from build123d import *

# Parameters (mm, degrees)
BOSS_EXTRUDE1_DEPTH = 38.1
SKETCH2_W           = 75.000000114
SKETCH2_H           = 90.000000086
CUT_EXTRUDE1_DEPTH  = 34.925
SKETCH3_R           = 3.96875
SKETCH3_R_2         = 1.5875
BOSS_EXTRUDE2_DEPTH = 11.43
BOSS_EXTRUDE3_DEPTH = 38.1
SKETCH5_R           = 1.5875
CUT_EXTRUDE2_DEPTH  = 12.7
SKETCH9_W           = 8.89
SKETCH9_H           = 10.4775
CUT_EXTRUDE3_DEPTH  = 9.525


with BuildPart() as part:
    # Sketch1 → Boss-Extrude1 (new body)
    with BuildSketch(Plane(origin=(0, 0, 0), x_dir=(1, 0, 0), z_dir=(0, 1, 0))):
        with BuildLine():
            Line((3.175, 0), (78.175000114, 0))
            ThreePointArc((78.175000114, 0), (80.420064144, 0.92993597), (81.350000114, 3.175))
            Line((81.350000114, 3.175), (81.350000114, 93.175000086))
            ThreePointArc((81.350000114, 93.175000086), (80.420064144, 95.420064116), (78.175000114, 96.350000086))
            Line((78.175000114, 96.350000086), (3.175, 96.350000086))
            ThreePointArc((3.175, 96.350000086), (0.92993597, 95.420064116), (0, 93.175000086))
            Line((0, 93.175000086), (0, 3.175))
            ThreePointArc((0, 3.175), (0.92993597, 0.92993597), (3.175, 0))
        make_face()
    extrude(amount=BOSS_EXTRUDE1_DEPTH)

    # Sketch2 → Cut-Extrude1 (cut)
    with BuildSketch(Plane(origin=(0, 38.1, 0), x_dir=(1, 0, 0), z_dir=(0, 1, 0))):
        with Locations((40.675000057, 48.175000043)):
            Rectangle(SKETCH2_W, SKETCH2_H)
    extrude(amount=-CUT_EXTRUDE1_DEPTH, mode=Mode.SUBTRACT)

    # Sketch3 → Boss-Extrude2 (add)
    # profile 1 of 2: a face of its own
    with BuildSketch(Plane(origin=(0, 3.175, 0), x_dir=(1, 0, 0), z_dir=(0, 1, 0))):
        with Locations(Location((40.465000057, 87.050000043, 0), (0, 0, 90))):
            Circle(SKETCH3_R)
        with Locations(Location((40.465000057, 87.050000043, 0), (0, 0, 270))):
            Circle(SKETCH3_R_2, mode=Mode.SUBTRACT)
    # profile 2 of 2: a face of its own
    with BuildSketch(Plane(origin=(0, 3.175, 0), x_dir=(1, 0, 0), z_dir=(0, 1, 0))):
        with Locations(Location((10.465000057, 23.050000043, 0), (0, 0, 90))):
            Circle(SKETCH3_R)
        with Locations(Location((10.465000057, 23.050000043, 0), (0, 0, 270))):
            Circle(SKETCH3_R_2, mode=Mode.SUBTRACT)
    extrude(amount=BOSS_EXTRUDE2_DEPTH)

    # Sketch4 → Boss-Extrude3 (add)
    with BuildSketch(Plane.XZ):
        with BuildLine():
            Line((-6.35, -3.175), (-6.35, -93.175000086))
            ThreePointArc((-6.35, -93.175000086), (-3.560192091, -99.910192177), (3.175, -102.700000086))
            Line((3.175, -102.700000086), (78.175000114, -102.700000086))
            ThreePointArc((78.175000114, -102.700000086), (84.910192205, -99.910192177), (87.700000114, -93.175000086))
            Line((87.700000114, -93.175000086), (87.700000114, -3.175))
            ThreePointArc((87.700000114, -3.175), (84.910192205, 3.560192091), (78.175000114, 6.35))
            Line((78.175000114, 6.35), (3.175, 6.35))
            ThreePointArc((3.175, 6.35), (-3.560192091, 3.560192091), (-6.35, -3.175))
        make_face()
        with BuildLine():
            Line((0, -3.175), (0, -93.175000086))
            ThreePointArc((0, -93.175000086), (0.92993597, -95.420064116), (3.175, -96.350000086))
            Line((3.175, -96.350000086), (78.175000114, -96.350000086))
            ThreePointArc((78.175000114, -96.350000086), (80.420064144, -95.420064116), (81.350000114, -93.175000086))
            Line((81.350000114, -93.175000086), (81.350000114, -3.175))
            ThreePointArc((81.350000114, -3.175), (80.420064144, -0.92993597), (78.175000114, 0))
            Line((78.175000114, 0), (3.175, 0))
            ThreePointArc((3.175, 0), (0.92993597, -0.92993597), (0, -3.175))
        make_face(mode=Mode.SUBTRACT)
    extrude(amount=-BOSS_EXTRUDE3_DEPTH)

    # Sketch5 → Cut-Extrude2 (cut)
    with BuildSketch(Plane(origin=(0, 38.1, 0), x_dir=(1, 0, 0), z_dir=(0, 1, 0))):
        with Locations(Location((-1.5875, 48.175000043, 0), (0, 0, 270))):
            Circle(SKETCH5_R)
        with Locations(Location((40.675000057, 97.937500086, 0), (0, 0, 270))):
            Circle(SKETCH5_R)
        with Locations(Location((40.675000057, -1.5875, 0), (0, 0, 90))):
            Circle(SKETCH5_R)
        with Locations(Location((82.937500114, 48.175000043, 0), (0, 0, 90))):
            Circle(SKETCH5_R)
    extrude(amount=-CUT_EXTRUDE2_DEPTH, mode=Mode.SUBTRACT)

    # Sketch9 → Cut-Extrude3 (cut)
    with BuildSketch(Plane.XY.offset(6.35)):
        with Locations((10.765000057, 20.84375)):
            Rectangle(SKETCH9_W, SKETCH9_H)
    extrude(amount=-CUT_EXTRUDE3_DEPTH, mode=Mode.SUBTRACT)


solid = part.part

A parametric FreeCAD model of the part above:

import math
import FreeCAD as App
import Part
import Sketcher
Q = App.Units.Quantity

doc = App.newDocument("Part")
body = doc.addObject("PartDesign::Body", "Body")

# Sketch on XZ plane
sketch1 = doc.addObject("Sketcher::SketchObject", "Sketch")
body.addObject(sketch1)
sketch1.AttachmentSupport = (doc.XZ_Plane, [""])
sketch1.MapMode = "FlatFace"
sketch1.addGeometry(Part.LineSegment(App.Vector(3.2, 0, 0), App.Vector(78.2, 0, 0)), False)
sketch1.addGeometry(Part.ArcOfCircle(Part.Circle(App.Vector(78.2, -3.2, 0), App.Vector(0, 0, 1), 3.2), math.radians(0), math.radians(90)), False)
sketch1.addGeometry(Part.LineSegment(App.Vector(81.4, -3.2, 0), App.Vector(81.4, -93.2, 0)), False)
sketch1.addGeometry(Part.ArcOfCircle(Part.Circle(App.Vector(78.2, -93.2, 0), App.Vector(0, 0, 1), 3.2), math.radians(-90), math.radians(0)), False)
sketch1.addGeometry(Part.LineSegment(App.Vector(78.2, -96.4, 0), App.Vector(3.2, -96.4, 0)), False)
sketch1.addGeometry(Part.ArcOfCircle(Part.Circle(App.Vector(3.2, -93.2, 0), App.Vector(0, 0, 1), 3.2), math.radians(-180), math.radians(-90)), False)
sketch1.addGeometry(Part.LineSegment(App.Vector(0, -93.2, 0), App.Vector(0, -3.2, 0)), False)
sketch1.addGeometry(Part.ArcOfCircle(Part.Circle(App.Vector(3.2, -3.2, 0), App.Vector(0, 0, 1), 3.2), math.radians(90), math.radians(180)), False)
sketch1.addConstraint(Sketcher.Constraint("Tangent", 0, 2, 1, 2))
sketch1.addConstraint(Sketcher.Constraint("Tangent", 1, 1, 2, 1))
sketch1.addConstraint(Sketcher.Constraint("Tangent", 2, 2, 3, 2))
sketch1.addConstraint(Sketcher.Constraint("Tangent", 3, 1, 4, 1))
sketch1.addConstraint(Sketcher.Constraint("Tangent", 4, 2, 5, 2))
sketch1.addConstraint(Sketcher.Constraint("Tangent", 5, 1, 6, 1))
sketch1.addConstraint(Sketcher.Constraint("Tangent", 6, 2, 7, 2))
sketch1.addConstraint(Sketcher.Constraint("Tangent", 7, 1, 0, 1))
sketch1.addConstraint(Sketcher.Constraint("Horizontal", 0))
sketch1.addConstraint(Sketcher.Constraint("Vertical", 2))
sketch1.addConstraint(Sketcher.Constraint("Horizontal", 4))
sketch1.addConstraint(Sketcher.Constraint("Vertical", 6))
sketch1.addConstraint(Sketcher.Constraint("Equal", 1, 3))
sketch1.addConstraint(Sketcher.Constraint("Equal", 3, 5))
sketch1.addConstraint(Sketcher.Constraint("Equal", 5, 7))
sketch1.addConstraint(Sketcher.Constraint("PointOnObject", 0, 2, -1))
sketch1.addConstraint(Sketcher.Constraint("PointOnObject", 5, 1, -2))
sketch1.addConstraint(Sketcher.Constraint("Radius", 1, Q("0.125 in")))
sketch1.addConstraint(Sketcher.Constraint("DistanceX", 0, 1, 0, 2, 75.0))
sketch1.addConstraint(Sketcher.Constraint("DistanceY", 2, 2, 2, 1, 90.0))
pad1 = doc.addObject("PartDesign::Pad", "Pad")
body.addObject(pad1)
pad1.Profile = sketch1
pad1.Length = Q("1.5 in")
pad1.Reversed = True

# Sketch on XZ plane
sketch2 = doc.addObject("Sketcher::SketchObject", "Sketch001")
body.addObject(sketch2)
sketch2.AttachmentSupport = (doc.XZ_Plane, [""])
sketch2.MapMode = "FlatFace"
sketch2.AttachmentOffset = App.Placement(App.Vector(0, 0, -1.5 * 25.4), App.Rotation())
sketch2.addGeometry(Part.LineSegment(App.Vector(3, -93, 0), App.Vector(3, -3, 0)), False)
sketch2.addGeometry(Part.LineSegment(App.Vector(3, -3, 0), App.Vector(78, -3, 0)), False)
sketch2.addGeometry(Part.LineSegment(App.Vector(78, -3, 0), App.Vector(78, -93, 0)), False)
sketch2.addGeometry(Part.LineSegment(App.Vector(78, -93, 0), App.Vector(3, -93, 0)), False)
sketch2.addConstraint(Sketcher.Constraint("Coincident", 0, 2, 1, 1))
sketch2.addConstraint(Sketcher.Constraint("Coincident", 1, 2, 2, 1))
sketch2.addConstraint(Sketcher.Constraint("Coincident", 2, 2, 3, 1))
sketch2.addConstraint(Sketcher.Constraint("Coincident", 3, 2, 0, 1))
sketch2.addConstraint(Sketcher.Constraint("Vertical", 0))
sketch2.addConstraint(Sketcher.Constraint("Horizontal", 1))
sketch2.addConstraint(Sketcher.Constraint("Vertical", 2))
sketch2.addConstraint(Sketcher.Constraint("Horizontal", 3))
sketch2.addConstraint(Sketcher.Constraint("DistanceX", -1, 1, 0, 2, Q("0.125 in")))
sketch2.addConstraint(Sketcher.Constraint("DistanceY", 0, 2, -1, 1, Q("0.125 in")))
sketch2.addConstraint(Sketcher.Constraint("DistanceX", 1, 1, 1, 2, 75.0))
sketch2.addConstraint(Sketcher.Constraint("DistanceY", 0, 1, 0, 2, 90.0))
pocket1 = doc.addObject("PartDesign::Pocket", "Pocket")
body.addObject(pocket1)
pocket1.Profile = sketch2
pocket1.Length = Q("1.375 in")
pocket1.Reversed = True

# Sketch on XZ plane
sketch3 = doc.addObject("Sketcher::SketchObject", "Sketch002")
body.addObject(sketch3)
sketch3.AttachmentSupport = (doc.XZ_Plane, [""])
sketch3.MapMode = "FlatFace"
sketch3.AttachmentOffset = App.Placement(App.Vector(0, 0, -0.125 * 25.4), App.Rotation())
sketch3.addGeometry(Part.Circle(App.Vector(40.5, -87.1, 0), App.Vector(0, 0, 1), 4), False)
sketch3.addGeometry(Part.Circle(App.Vector(40.5, -87.1, 0), App.Vector(0, 0, 1), 1.6), False)
sketch3.addGeometry(Part.Circle(App.Vector(10.5, -23.1, 0), App.Vector(0, 0, 1), 4), False)
sketch3.addGeometry(Part.Circle(App.Vector(10.5, -23.1, 0), App.Vector(0, 0, 1), 1.6), False)
sketch3.addConstraint(Sketcher.Constraint("Coincident", 1, 3, 0, 3))
sketch3.addConstraint(Sketcher.Constraint("Coincident", 3, 3, 2, 3))
sketch3.addConstraint(Sketcher.Constraint("Equal", 0, 2))
sketch3.addConstraint(Sketcher.Constraint("Equal", 1, 3))
sketch3.addConstraint(Sketcher.Constraint("Diameter", 0, Q("0.3125 in")))
sketch3.addConstraint(Sketcher.Constraint("Diameter", 1, Q("0.125 in")))
sketch3.addConstraint(Sketcher.Constraint("DistanceX", -1, 1, 0, 3, 40.465))
sketch3.addConstraint(Sketcher.Constraint("DistanceY", 0, 3, -1, 1, 87.05))
sketch3.addConstraint(Sketcher.Constraint("DistanceX", -1, 1, 2, 3, 10.465))
sketch3.addConstraint(Sketcher.Constraint("DistanceY", 2, 3, -1, 1, 23.05))
pad2 = doc.addObject("PartDesign::Pad", "Pad001")
body.addObject(pad2)
pad2.Profile = sketch3
pad2.Length = Q("0.45 in")
pad2.Reversed = True

# Sketch on XZ plane
sketch4 = doc.addObject("Sketcher::SketchObject", "Sketch003")
body.addObject(sketch4)
sketch4.AttachmentSupport = (doc.XZ_Plane, [""])
sketch4.MapMode = "FlatFace"
sketch4.addGeometry(Part.LineSegment(App.Vector(-6.3, -3.2, 0), App.Vector(-6.3, -93.2, 0)), False)
sketch4.addGeometry(Part.ArcOfCircle(Part.Circle(App.Vector(3.2, -93.2, 0), App.Vector(0, 0, 1), 9.5), math.radians(180), math.radians(270)), False)
sketch4.addGeometry(Part.LineSegment(App.Vector(3.2, -102.7, 0), App.Vector(78.2, -102.7, 0)), False)
sketch4.addGeometry(Part.ArcOfCircle(Part.Circle(App.Vector(78.2, -93.2, 0), App.Vector(0, 0, 1), 9.5), math.radians(-90), math.radians(0)), False)
sketch4.addGeometry(Part.LineSegment(App.Vector(87.7, -93.2, 0), App.Vector(87.7, -3.2, 0)), False)
sketch4.addGeometry(Part.ArcOfCircle(Part.Circle(App.Vector(78.2, -3.2, 0), App.Vector(0, 0, 1), 9.5), math.radians(0), math.radians(90)), False)
sketch4.addGeometry(Part.LineSegment(App.Vector(78.2, 6.3, 0), App.Vector(3.2, 6.3, 0)), False)
sketch4.addGeometry(Part.ArcOfCircle(Part.Circle(App.Vector(3.2, -3.2, 0), App.Vector(0, 0, 1), 9.5), math.radians(90), math.radians(180)), False)
sketch4.addGeometry(Part.LineSegment(App.Vector(0, -93.2, 0), App.Vector(0, -3.2, 0)), False)
sketch4.addGeometry(Part.ArcOfCircle(Part.Circle(App.Vector(3.2, -3.2, 0), App.Vector(0, 0, 1), 3.2), math.radians(90), math.radians(180)), False)
sketch4.addGeometry(Part.LineSegment(App.Vector(3.2, 0, 0), App.Vector(78.2, 0, 0)), False)
sketch4.addGeometry(Part.ArcOfCircle(Part.Circle(App.Vector(78.2, -3.2, 0), App.Vector(0, 0, 1), 3.2), math.radians(0), math.radians(90)), False)
sketch4.addGeometry(Part.LineSegment(App.Vector(81.4, -3.2, 0), App.Vector(81.4, -93.2, 0)), False)
sketch4.addGeometry(Part.ArcOfCircle(Part.Circle(App.Vector(78.2, -93.2, 0), App.Vector(0, 0, 1), 3.2), math.radians(-90), math.radians(0)), False)
sketch4.addGeometry(Part.LineSegment(App.Vector(78.2, -96.4, 0), App.Vector(3.2, -96.4, 0)), False)
sketch4.addGeometry(Part.ArcOfCircle(Part.Circle(App.Vector(3.2, -93.2, 0), App.Vector(0, 0, 1), 3.2), math.radians(-180), math.radians(-90)), False)
sketch4.addConstraint(Sketcher.Constraint("Tangent", 0, 2, 1, 1))
sketch4.addConstraint(Sketcher.Constraint("Tangent", 1, 2, 2, 1))
sketch4.addConstraint(Sketcher.Constraint("Tangent", 2, 2, 3, 1))
sketch4.addConstraint(Sketcher.Constraint("Tangent", 3, 2, 4, 1))
sketch4.addConstraint(Sketcher.Constraint("Tangent", 4, 2, 5, 1))
sketch4.addConstraint(Sketcher.Constraint("Tangent", 5, 2, 6, 1))
sketch4.addConstraint(Sketcher.Constraint("Tangent", 6, 2, 7, 1))
sketch4.addConstraint(Sketcher.Constraint("Tangent", 7, 2, 0, 1))
sketch4.addConstraint(Sketcher.Constraint("Tangent", 8, 2, 9, 2))
sketch4.addConstraint(Sketcher.Constraint("Tangent", 9, 1, 10, 1))
sketch4.addConstraint(Sketcher.Constraint("Tangent", 10, 2, 11, 2))
sketch4.addConstraint(Sketcher.Constraint("Tangent", 11, 1, 12, 1))
sketch4.addConstraint(Sketcher.Constraint("Tangent", 12, 2, 13, 2))
sketch4.addConstraint(Sketcher.Constraint("Tangent", 13, 1, 14, 1))
sketch4.addConstraint(Sketcher.Constraint("Tangent", 14, 2, 15, 2))
sketch4.addConstraint(Sketcher.Constraint("Tangent", 15, 1, 8, 1))
sketch4.addConstraint(Sketcher.Constraint("Vertical", 0))
sketch4.addConstraint(Sketcher.Constraint("Horizontal", 2))
sketch4.addConstraint(Sketcher.Constraint("Vertical", 4))
sketch4.addConstraint(Sketcher.Constraint("Horizontal", 6))
sketch4.addConstraint(Sketcher.Constraint("Vertical", 8))
sketch4.addConstraint(Sketcher.Constraint("Horizontal", 10))
sketch4.addConstraint(Sketcher.Constraint("Vertical", 12))
sketch4.addConstraint(Sketcher.Constraint("Horizontal", 14))
sketch4.addConstraint(Sketcher.Constraint("Coincident", 9, 3, 7, 3))
sketch4.addConstraint(Sketcher.Constraint("Coincident", 11, 3, 5, 3))
sketch4.addConstraint(Sketcher.Constraint("Coincident", 13, 3, 3, 3))
sketch4.addConstraint(Sketcher.Constraint("Equal", 1, 3))
sketch4.addConstraint(Sketcher.Constraint("Equal", 3, 5))
sketch4.addConstraint(Sketcher.Constraint("Equal", 5, 7))
sketch4.addConstraint(Sketcher.Constraint("Equal", 13, 15))
sketch4.addConstraint(Sketcher.Constraint("PointOnObject", 8, 2, -2))
sketch4.addConstraint(Sketcher.Constraint("PointOnObject", 9, 1, -1))
sketch4.addConstraint(Sketcher.Constraint("Radius", 1, Q("0.375 in")))
sketch4.addConstraint(Sketcher.Constraint("Radius", 9, Q("0.125 in")))
sketch4.addConstraint(Sketcher.Constraint("DistanceX", 2, 1, 2, 2, 75.0))
sketch4.addConstraint(Sketcher.Constraint("DistanceY", 0, 2, 0, 1, 90.0))
pad3 = doc.addObject("PartDesign::Pad", "Pad002")
body.addObject(pad3)
pad3.Profile = sketch4
pad3.Length = Q("1.5 in")
pad3.Reversed = True

# Sketch on XZ plane
sketch5 = doc.addObject("Sketcher::SketchObject", "Sketch004")
body.addObject(sketch5)
sketch5.AttachmentSupport = (doc.XZ_Plane, [""])
sketch5.MapMode = "FlatFace"
sketch5.AttachmentOffset = App.Placement(App.Vector(0, 0, -1.5 * 25.4), App.Rotation())
sketch5.addGeometry(Part.Circle(App.Vector(-1.6, -48.2, 0), App.Vector(0, 0, 1), 1.6), False)
sketch5.addGeometry(Part.Circle(App.Vector(40.7, -97.9, 0), App.Vector(0, 0, 1), 1.6), False)
sketch5.addGeometry(Part.Circle(App.Vector(40.7, 1.6, 0), App.Vector(0, 0, 1), 1.6), False)
sketch5.addGeometry(Part.Circle(App.Vector(82.9, -48.2, 0), App.Vector(0, 0, 1), 1.6), False)
sketch5.addConstraint(Sketcher.Constraint("Equal", 0, 1))
sketch5.addConstraint(Sketcher.Constraint("Equal", 1, 2))
sketch5.addConstraint(Sketcher.Constraint("Equal", 2, 3))
sketch5.addConstraint(Sketcher.Constraint("Horizontal", 0, 3, 3, 3))
sketch5.addConstraint(Sketcher.Constraint("Vertical", 1, 3, 2, 3))
sketch5.addConstraint(Sketcher.Constraint("Diameter", 0, Q("0.125 in")))
sketch5.addConstraint(Sketcher.Constraint("DistanceX", 0, 3, -1, 1, Q("0.0625 in")))
sketch5.addConstraint(Sketcher.Constraint("DistanceY", -1, 1, 2, 3, Q("0.0625 in")))
sketch5.addConstraint(Sketcher.Constraint("DistanceY", 0, 3, -1, 1, 48.175))
sketch5.addConstraint(Sketcher.Constraint("DistanceX", -1, 1, 1, 3, 40.675))
sketch5.addConstraint(Sketcher.Constraint("DistanceY", 1, 3, -1, 1, 97.9375))
sketch5.addConstraint(Sketcher.Constraint("DistanceX", -1, 1, 3, 3, 82.9375))
pocket2 = doc.addObject("PartDesign::Pocket", "Pocket001")
body.addObject(pocket2)
pocket2.Profile = sketch5
pocket2.Length = Q("0.5 in")
pocket2.Reversed = True

# Sketch on XY plane
sketch6 = doc.addObject("Sketcher::SketchObject", "Sketch005")
body.addObject(sketch6)
sketch6.AttachmentSupport = (doc.XY_Plane, [""])
sketch6.MapMode = "FlatFace"
sketch6.AttachmentOffset = App.Placement(App.Vector(0, 0, 0.25 * 25.4), App.Rotation())
sketch6.addGeometry(Part.LineSegment(App.Vector(6, 26, 0), App.Vector(6, 16, 0)), False)
sketch6.addGeometry(Part.LineSegment(App.Vector(6, 16, 0), App.Vector(15, 16, 0)), False)
sketch6.addGeometry(Part.LineSegment(App.Vector(15, 16, 0), App.Vector(15, 26, 0)), False)
sketch6.addGeometry(Part.LineSegment(App.Vector(15, 26, 0), App.Vector(6, 26, 0)), False)
sketch6.addConstraint(Sketcher.Constraint("Coincident", 0, 2, 1, 1))
sketch6.addConstraint(Sketcher.Constraint("Coincident", 1, 2, 2, 1))
sketch6.addConstraint(Sketcher.Constraint("Coincident", 2, 2, 3, 1))
sketch6.addConstraint(Sketcher.Constraint("Coincident", 3, 2, 0, 1))
sketch6.addConstraint(Sketcher.Constraint("Vertical", 0))
sketch6.addConstraint(Sketcher.Constraint("Horizontal", 1))
sketch6.addConstraint(Sketcher.Constraint("Vertical", 2))
sketch6.addConstraint(Sketcher.Constraint("Horizontal", 3))
sketch6.addConstraint(Sketcher.Constraint("DistanceX", 1, 1, 1, 2, Q("0.35 in")))
sketch6.addConstraint(Sketcher.Constraint("DistanceY", 0, 2, 0, 1, Q("0.4125 in")))
sketch6.addConstraint(Sketcher.Constraint("DistanceX", -1, 1, 0, 2, 6.32))
sketch6.addConstraint(Sketcher.Constraint("DistanceY", -1, 1, 0, 2, 15.605))
pocket3 = doc.addObject("PartDesign::Pocket", "Pocket002")
body.addObject(pocket3)
pocket3.Profile = sketch6
pocket3.Length = Q("0.375 in")

doc.recompute()
